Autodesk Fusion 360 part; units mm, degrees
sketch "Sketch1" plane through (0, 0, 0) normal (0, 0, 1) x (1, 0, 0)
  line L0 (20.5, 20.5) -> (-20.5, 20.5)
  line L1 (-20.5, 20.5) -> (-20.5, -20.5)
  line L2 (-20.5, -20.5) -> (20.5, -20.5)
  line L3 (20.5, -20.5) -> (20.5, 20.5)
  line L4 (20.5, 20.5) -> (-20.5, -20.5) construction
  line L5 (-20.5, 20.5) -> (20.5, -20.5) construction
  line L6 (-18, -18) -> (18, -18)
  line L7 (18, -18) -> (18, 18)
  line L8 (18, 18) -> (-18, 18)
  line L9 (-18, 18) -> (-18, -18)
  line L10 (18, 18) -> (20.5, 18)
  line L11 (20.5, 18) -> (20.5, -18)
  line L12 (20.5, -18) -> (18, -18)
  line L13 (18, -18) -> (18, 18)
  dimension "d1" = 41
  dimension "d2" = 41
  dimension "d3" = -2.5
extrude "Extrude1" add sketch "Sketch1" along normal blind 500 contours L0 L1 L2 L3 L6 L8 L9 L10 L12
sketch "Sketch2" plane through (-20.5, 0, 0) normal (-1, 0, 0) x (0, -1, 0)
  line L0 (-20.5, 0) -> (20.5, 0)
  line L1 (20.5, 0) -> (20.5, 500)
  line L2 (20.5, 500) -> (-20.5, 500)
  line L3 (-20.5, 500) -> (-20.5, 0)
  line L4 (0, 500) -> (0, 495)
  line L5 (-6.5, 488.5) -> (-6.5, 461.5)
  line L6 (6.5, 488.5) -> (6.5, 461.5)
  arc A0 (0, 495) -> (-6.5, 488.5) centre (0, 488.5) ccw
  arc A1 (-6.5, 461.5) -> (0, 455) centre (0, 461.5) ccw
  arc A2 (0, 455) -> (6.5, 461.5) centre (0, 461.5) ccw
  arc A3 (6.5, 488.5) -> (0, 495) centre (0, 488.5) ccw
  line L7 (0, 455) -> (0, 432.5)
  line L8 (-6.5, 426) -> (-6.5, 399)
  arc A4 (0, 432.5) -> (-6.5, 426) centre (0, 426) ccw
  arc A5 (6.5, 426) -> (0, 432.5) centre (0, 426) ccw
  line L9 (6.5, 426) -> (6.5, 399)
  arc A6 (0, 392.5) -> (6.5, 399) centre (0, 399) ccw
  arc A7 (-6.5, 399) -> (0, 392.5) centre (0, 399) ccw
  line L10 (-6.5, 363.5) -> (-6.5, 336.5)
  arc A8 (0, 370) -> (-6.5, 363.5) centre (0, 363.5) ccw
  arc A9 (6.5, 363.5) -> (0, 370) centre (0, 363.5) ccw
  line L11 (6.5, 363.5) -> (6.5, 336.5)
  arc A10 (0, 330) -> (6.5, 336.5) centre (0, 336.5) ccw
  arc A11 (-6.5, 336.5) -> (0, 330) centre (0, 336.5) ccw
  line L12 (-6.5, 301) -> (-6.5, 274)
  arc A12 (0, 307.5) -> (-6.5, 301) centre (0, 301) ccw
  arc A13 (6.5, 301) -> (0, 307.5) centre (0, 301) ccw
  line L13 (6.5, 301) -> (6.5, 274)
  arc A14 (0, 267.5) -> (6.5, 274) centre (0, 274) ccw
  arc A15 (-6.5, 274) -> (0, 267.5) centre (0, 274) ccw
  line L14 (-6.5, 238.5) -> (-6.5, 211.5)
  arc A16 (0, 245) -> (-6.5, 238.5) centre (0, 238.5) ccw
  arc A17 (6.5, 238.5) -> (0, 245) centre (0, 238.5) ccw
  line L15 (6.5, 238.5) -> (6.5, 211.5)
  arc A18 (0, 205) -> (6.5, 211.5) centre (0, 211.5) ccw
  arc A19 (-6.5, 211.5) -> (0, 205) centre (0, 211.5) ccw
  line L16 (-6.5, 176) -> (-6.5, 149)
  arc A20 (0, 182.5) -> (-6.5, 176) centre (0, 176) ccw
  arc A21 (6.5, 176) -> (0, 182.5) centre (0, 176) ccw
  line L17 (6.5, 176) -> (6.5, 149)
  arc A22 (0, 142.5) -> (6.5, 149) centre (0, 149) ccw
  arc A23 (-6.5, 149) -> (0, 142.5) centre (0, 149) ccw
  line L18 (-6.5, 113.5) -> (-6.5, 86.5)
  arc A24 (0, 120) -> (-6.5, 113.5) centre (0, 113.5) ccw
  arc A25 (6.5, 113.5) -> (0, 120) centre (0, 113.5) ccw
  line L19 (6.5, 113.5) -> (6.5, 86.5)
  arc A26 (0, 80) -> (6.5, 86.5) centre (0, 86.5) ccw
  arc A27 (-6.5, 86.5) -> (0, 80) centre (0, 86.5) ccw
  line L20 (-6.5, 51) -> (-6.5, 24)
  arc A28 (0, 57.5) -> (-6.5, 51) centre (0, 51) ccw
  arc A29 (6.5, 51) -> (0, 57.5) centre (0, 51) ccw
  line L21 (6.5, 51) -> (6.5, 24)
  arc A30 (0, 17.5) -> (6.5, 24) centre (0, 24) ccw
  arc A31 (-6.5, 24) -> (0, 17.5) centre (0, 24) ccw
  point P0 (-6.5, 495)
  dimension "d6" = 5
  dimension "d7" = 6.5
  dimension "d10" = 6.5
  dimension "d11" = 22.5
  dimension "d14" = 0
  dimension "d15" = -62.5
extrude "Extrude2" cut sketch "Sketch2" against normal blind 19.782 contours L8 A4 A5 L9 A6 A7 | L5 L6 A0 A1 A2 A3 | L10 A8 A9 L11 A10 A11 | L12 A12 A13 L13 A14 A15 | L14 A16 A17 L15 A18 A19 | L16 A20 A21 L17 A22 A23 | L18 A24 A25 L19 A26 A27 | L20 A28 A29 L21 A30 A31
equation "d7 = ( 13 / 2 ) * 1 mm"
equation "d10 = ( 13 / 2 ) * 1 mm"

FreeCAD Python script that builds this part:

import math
import FreeCAD as App
import Part
import Sketcher
Q = App.Units.Quantity

doc = App.newDocument("Part")
params = doc.addObject("Spreadsheet::Sheet", "Params")
for row, (alias, value) in enumerate([
    ("sketch1_width", "41 mm"),
    ("sketch1_height", "2.5 mm"),
    ("pad1_length", "500 mm"),
    ("sketch2_radius", "6.5 mm"),
    ("sketch2_height", "27 mm"),
    ("pocket1_length", "19.782 mm"),
], start=1):
    params.set(f"A{row}", alias)
    params.set(f"B{row}", "=" + value)
    params.setAlias(f"B{row}", alias)

body = doc.addObject("PartDesign::Body", "Body")

# Sketch on XY plane
sketch1 = doc.addObject("Sketcher::SketchObject", "Sketch")
body.addObject(sketch1)
sketch1.AttachmentSupport = (doc.XY_Plane, [""])
sketch1.MapMode = "FlatFace"
sketch1.addGeometry([
    Part.LineSegment(App.Vector(20.5, 18, 0), App.Vector(20.5, 20.5, 0)),  # 0
    Part.LineSegment(App.Vector(20.5, 20.5, 0), App.Vector(-20.5, 20.5, 0)),  # 1
    Part.LineSegment(App.Vector(-20.5, 20.5, 0), App.Vector(-20.5, -20.5, 0)),  # 2
    Part.LineSegment(App.Vector(-20.5, -20.5, 0), App.Vector(20.5, -20.5, 0)),  # 3
    Part.LineSegment(App.Vector(20.5, -20.5, 0), App.Vector(20.5, -18, 0)),  # 4
    Part.LineSegment(App.Vector(20.5, -18, 0), App.Vector(-18, -18, 0)),  # 5
    Part.LineSegment(App.Vector(-18, -18, 0), App.Vector(-18, 18, 0)),  # 6
    Part.LineSegment(App.Vector(-18, 18, 0), App.Vector(20.5, 18, 0)),  # 7
], False)
sketch1.addConstraint([
    Sketcher.Constraint("Coincident", 0, 2, 1, 1),
    Sketcher.Constraint("Coincident", 1, 2, 2, 1),
    Sketcher.Constraint("Coincident", 2, 2, 3, 1),
    Sketcher.Constraint("Coincident", 3, 2, 4, 1),
    Sketcher.Constraint("Coincident", 4, 2, 5, 1),
    Sketcher.Constraint("Coincident", 5, 2, 6, 1),
    Sketcher.Constraint("Coincident", 6, 2, 7, 1),
    Sketcher.Constraint("Coincident", 7, 2, 0, 1),
    Sketcher.Constraint("Vertical", 0),
    Sketcher.Constraint("Horizontal", 1),
    Sketcher.Constraint("Vertical", 2),
    Sketcher.Constraint("Horizontal", 3),
    Sketcher.Constraint("Vertical", 4),
    Sketcher.Constraint("Horizontal", 5),
    Sketcher.Constraint("Vertical", 6),
    Sketcher.Constraint("Horizontal", 7),
    Sketcher.Constraint("Symmetric", 0, 2, 2, 2, -1, 1),
    Sketcher.Constraint("Symmetric", 4, 2, 7, 2, -1),
    Sketcher.Constraint("Equal", 3, 2),
    Sketcher.Constraint("DistanceX", 1, 2, 1, 1, Q("41 mm")),
    Sketcher.Constraint("DistanceY", 0, 1, 0, 2, Q("2.5 mm")),
    Sketcher.Constraint("DistanceX", 2, 2, 5, 2, Q("2.5 mm")),
])
sketch1.setExpression("Constraints[19]", "Params.sketch1_width")
sketch1.setExpression("Constraints[20]", "Params.sketch1_height")
pad1 = doc.addObject("PartDesign::Pad", "Pad")
body.addObject(pad1)
pad1.Profile = sketch1
pad1.setExpression("Length", "Params.pad1_length")

# Sketch on YZ plane
sketch2 = doc.addObject("Sketcher::SketchObject", "Sketch001")
body.addObject(sketch2)
sketch2.AttachmentSupport = (doc.YZ_Plane, [""])
sketch2.MapMode = "FlatFace"
sketch2.AttachmentOffset = App.Placement(App.Vector(0, 0, -20.5), App.Rotation())
sketch2.addGeometry([
    Part.ArcOfCircle(Part.Circle(App.Vector(0, 426, 0), App.Vector(0, 0, 1), 6), math.radians(0), math.radians(180)),  # 0
    Part.LineSegment(App.Vector(6, 426, 0), App.Vector(6, 399, 0)),  # 1
    Part.ArcOfCircle(Part.Circle(App.Vector(0, 399, 0), App.Vector(0, 0, 1), 6), math.radians(180), math.radians(360)),  # 2
    Part.LineSegment(App.Vector(-6, 399, 0), App.Vector(-6, 426, 0)),  # 3
    Part.ArcOfCircle(Part.Circle(App.Vector(0, 488, 0), App.Vector(0, 0, 1), 6), math.radians(0), math.radians(180)),  # 4
    Part.LineSegment(App.Vector(6, 488, 0), App.Vector(6, 462, 0)),  # 5
    Part.ArcOfCircle(Part.Circle(App.Vector(0, 462, 0), App.Vector(0, 0, 1), 6), math.radians(180), math.radians(360)),  # 6
    Part.LineSegment(App.Vector(-6, 462, 0), App.Vector(-6, 488, 0)),  # 7
    Part.ArcOfCircle(Part.Circle(App.Vector(0, 364, 0), App.Vector(0, 0, 1), 6), math.radians(0), math.radians(180)),  # 8
    Part.LineSegment(App.Vector(6, 364, 0), App.Vector(6, 336, 0)),  # 9
    Part.ArcOfCircle(Part.Circle(App.Vector(0, 336, 0), App.Vector(0, 0, 1), 6), math.radians(180), math.radians(360)),  # 10
    Part.LineSegment(App.Vector(-6, 336, 0), App.Vector(-6, 364, 0)),  # 11
    Part.ArcOfCircle(Part.Circle(App.Vector(0, 301, 0), App.Vector(0, 0, 1), 6), math.radians(0), math.radians(180)),  # 12
    Part.LineSegment(App.Vector(6, 301, 0), App.Vector(6, 274, 0)),  # 13
    Part.ArcOfCircle(Part.Circle(App.Vector(0, 274, 0), App.Vector(0, 0, 1), 6), math.radians(180), math.radians(360)),  # 14
    Part.LineSegment(App.Vector(-6, 274, 0), App.Vector(-6, 301, 0)),  # 15
    Part.ArcOfCircle(Part.Circle(App.Vector(0, 238, 0), App.Vector(0, 0, 1), 6), math.radians(0), math.radians(180)),  # 16
    Part.LineSegment(App.Vector(6, 238, 0), App.Vector(6, 212, 0)),  # 17
    Part.ArcOfCircle(Part.Circle(App.Vector(0, 212, 0), App.Vector(0, 0, 1), 6), math.radians(180), math.radians(360)),  # 18
    Part.LineSegment(App.Vector(-6, 212, 0), App.Vector(-6, 238, 0)),  # 19
    Part.ArcOfCircle(Part.Circle(App.Vector(0, 176, 0), App.Vector(0, 0, 1), 6), math.radians(0), math.radians(180)),  # 20
    Part.LineSegment(App.Vector(6, 176, 0), App.Vector(6, 149, 0)),  # 21
    Part.ArcOfCircle(Part.Circle(App.Vector(0, 149, 0), App.Vector(0, 0, 1), 6), math.radians(180), math.radians(360)),  # 22
    Part.LineSegment(App.Vector(-6, 149, 0), App.Vector(-6, 176, 0)),  # 23
    Part.ArcOfCircle(Part.Circle(App.Vector(0, 114, 0), App.Vector(0, 0, 1), 6), math.radians(0), math.radians(180)),  # 24
    Part.LineSegment(App.Vector(6, 114, 0), App.Vector(6, 86, 0)),  # 25
    Part.ArcOfCircle(Part.Circle(App.Vector(0, 86, 0), App.Vector(0, 0, 1), 6), math.radians(180), math.radians(360)),  # 26
    Part.LineSegment(App.Vector(-6, 86, 0), App.Vector(-6, 114, 0)),  # 27
    Part.ArcOfCircle(Part.Circle(App.Vector(0, 51, 0), App.Vector(0, 0, 1), 6), math.radians(0), math.radians(180)),  # 28
    Part.LineSegment(App.Vector(6, 51, 0), App.Vector(6, 24, 0)),  # 29
    Part.ArcOfCircle(Part.Circle(App.Vector(0, 24, 0), App.Vector(0, 0, 1), 6), math.radians(180), math.radians(360)),  # 30
    Part.LineSegment(App.Vector(-6, 24, 0), App.Vector(-6, 51, 0)),  # 31
], False)
sketch2.addConstraint([
    Sketcher.Constraint("Tangent", 0, 1, 1, 1),
    Sketcher.Constraint("Tangent", 1, 2, 2, 2),
    Sketcher.Constraint("Tangent", 2, 1, 3, 1),
    Sketcher.Constraint("Tangent", 3, 2, 0, 2),
    Sketcher.Constraint("Tangent", 4, 1, 5, 1),
    Sketcher.Constraint("Tangent", 5, 2, 6, 2),
    Sketcher.Constraint("Tangent", 6, 1, 7, 1),
    Sketcher.Constraint("Tangent", 7, 2, 4, 2),
    Sketcher.Constraint("Tangent", 8, 1, 9, 1),
    Sketcher.Constraint("Tangent", 9, 2, 10, 2),
    Sketcher.Constraint("Tangent", 10, 1, 11, 1),
    Sketcher.Constraint("Tangent", 11, 2, 8, 2),
    Sketcher.Constraint("Tangent", 12, 1, 13, 1),
    Sketcher.Constraint("Tangent", 13, 2, 14, 2),
    Sketcher.Constraint("Tangent", 14, 1, 15, 1),
    Sketcher.Constraint("Tangent", 15, 2, 12, 2),
    Sketcher.Constraint("Tangent", 16, 1, 17, 1),
    Sketcher.Constraint("Tangent", 17, 2, 18, 2),
    Sketcher.Constraint("Tangent", 18, 1, 19, 1),
    Sketcher.Constraint("Tangent", 19, 2, 16, 2),
    Sketcher.Constraint("Tangent", 20, 1, 21, 1),
    Sketcher.Constraint("Tangent", 21, 2, 22, 2),
    Sketcher.Constraint("Tangent", 22, 1, 23, 1),
    Sketcher.Constraint("Tangent", 23, 2, 20, 2),
    Sketcher.Constraint("Tangent", 24, 1, 25, 1),
    Sketcher.Constraint("Tangent", 25, 2, 26, 2),
    Sketcher.Constraint("Tangent", 26, 1, 27, 1),
    Sketcher.Constraint("Tangent", 27, 2, 24, 2),
    Sketcher.Constraint("Tangent", 28, 1, 29, 1),
    Sketcher.Constraint("Tangent", 29, 2, 30, 2),
    Sketcher.Constraint("Tangent", 30, 1, 31, 1),
    Sketcher.Constraint("Tangent", 31, 2, 28, 2),
    Sketcher.Constraint("Vertical", 1),
    Sketcher.Constraint("Vertical", 3),
    Sketcher.Constraint("Vertical", 5),
    Sketcher.Constraint("Vertical", 7),
    Sketcher.Constraint("Vertical", 9),
    Sketcher.Constraint("Vertical", 11),
    Sketcher.Constraint("Vertical", 13),
    Sketcher.Constraint("Vertical", 15),
    Sketcher.Constraint("Vertical", 17),
    Sketcher.Constraint("Vertical", 19),
    Sketcher.Constraint("Vertical", 21),
    Sketcher.Constraint("Vertical", 23),
    Sketcher.Constraint("Vertical", 25),
    Sketcher.Constraint("Vertical", 27),
    Sketcher.Constraint("Vertical", 29),
    Sketcher.Constraint("Vertical", 31),
    Sketcher.Constraint("Equal", 2, 4),
    Sketcher.Constraint("Equal", 6, 8),
    Sketcher.Constraint("Equal", 10, 12),
    Sketcher.Constraint("Equal", 14, 16),
    Sketcher.Constraint("Equal", 18, 20),
    Sketcher.Constraint("Equal", 22, 24),
    Sketcher.Constraint("Equal", 26, 28),
    Sketcher.Constraint("PointOnObject", 0, 3, -2),
    Sketcher.Constraint("PointOnObject", 4, 3, -2),
    Sketcher.Constraint("PointOnObject", 8, 3, -2),
    Sketcher.Constraint("PointOnObject", 12, 3, -2),
    Sketcher.Constraint("PointOnObject", 16, 3, -2),
    Sketcher.Constraint("PointOnObject", 20, 3, -2),
    Sketcher.Constraint("PointOnObject", 24, 3, -2),
    Sketcher.Constraint("PointOnObject", 28, 3, -2),
    Sketcher.Constraint("Equal", 3, 5),
    Sketcher.Constraint("Equal", 7, 9),
    Sketcher.Constraint("Equal", 11, 13),
    Sketcher.Constraint("Equal", 15, 17),
    Sketcher.Constraint("Equal", 19, 21),
    Sketcher.Constraint("Equal", 23, 25),
    Sketcher.Constraint("Equal", 27, 29),
    Sketcher.Constraint("Radius", 0, Q("6.5 mm")),
    Sketcher.Constraint("DistanceY", 0, 3, 4, 3, Q("62.5 mm")),
    Sketcher.Constraint("DistanceY", 8, 3, 0, 3, Q("62.5 mm")),
    Sketcher.Constraint("DistanceY", 12, 3, 8, 3, Q("62.5 mm")),
    Sketcher.Constraint("DistanceY", 16, 3, 12, 3, Q("62.5 mm")),
    Sketcher.Constraint("DistanceY", 20, 3, 16, 3, Q("62.5 mm")),
    Sketcher.Constraint("DistanceY", 24, 3, 20, 3, Q("62.5 mm")),
    Sketcher.Constraint("DistanceY", 28, 3, 24, 3, Q("62.5 mm")),
    Sketcher.Constraint("DistanceY", 1, 2, 1, 1, Q("27 mm")),
    Sketcher.Constraint("DistanceY", -1, 1, 0, 3, Q("426 mm")),
])
sketch2.setExpression("Constraints[70]", "Params.sketch2_radius")
sketch2.setExpression("Constraints[78]", "Params.sketch2_height")
pocket1 = doc.addObject("PartDesign::Pocket", "Pocket")
body.addObject(pocket1)
pocket1.Profile = sketch2
pocket1.setExpression("Length", "Params.pocket1_length")
pocket1.Reversed = True

doc.recompute()
